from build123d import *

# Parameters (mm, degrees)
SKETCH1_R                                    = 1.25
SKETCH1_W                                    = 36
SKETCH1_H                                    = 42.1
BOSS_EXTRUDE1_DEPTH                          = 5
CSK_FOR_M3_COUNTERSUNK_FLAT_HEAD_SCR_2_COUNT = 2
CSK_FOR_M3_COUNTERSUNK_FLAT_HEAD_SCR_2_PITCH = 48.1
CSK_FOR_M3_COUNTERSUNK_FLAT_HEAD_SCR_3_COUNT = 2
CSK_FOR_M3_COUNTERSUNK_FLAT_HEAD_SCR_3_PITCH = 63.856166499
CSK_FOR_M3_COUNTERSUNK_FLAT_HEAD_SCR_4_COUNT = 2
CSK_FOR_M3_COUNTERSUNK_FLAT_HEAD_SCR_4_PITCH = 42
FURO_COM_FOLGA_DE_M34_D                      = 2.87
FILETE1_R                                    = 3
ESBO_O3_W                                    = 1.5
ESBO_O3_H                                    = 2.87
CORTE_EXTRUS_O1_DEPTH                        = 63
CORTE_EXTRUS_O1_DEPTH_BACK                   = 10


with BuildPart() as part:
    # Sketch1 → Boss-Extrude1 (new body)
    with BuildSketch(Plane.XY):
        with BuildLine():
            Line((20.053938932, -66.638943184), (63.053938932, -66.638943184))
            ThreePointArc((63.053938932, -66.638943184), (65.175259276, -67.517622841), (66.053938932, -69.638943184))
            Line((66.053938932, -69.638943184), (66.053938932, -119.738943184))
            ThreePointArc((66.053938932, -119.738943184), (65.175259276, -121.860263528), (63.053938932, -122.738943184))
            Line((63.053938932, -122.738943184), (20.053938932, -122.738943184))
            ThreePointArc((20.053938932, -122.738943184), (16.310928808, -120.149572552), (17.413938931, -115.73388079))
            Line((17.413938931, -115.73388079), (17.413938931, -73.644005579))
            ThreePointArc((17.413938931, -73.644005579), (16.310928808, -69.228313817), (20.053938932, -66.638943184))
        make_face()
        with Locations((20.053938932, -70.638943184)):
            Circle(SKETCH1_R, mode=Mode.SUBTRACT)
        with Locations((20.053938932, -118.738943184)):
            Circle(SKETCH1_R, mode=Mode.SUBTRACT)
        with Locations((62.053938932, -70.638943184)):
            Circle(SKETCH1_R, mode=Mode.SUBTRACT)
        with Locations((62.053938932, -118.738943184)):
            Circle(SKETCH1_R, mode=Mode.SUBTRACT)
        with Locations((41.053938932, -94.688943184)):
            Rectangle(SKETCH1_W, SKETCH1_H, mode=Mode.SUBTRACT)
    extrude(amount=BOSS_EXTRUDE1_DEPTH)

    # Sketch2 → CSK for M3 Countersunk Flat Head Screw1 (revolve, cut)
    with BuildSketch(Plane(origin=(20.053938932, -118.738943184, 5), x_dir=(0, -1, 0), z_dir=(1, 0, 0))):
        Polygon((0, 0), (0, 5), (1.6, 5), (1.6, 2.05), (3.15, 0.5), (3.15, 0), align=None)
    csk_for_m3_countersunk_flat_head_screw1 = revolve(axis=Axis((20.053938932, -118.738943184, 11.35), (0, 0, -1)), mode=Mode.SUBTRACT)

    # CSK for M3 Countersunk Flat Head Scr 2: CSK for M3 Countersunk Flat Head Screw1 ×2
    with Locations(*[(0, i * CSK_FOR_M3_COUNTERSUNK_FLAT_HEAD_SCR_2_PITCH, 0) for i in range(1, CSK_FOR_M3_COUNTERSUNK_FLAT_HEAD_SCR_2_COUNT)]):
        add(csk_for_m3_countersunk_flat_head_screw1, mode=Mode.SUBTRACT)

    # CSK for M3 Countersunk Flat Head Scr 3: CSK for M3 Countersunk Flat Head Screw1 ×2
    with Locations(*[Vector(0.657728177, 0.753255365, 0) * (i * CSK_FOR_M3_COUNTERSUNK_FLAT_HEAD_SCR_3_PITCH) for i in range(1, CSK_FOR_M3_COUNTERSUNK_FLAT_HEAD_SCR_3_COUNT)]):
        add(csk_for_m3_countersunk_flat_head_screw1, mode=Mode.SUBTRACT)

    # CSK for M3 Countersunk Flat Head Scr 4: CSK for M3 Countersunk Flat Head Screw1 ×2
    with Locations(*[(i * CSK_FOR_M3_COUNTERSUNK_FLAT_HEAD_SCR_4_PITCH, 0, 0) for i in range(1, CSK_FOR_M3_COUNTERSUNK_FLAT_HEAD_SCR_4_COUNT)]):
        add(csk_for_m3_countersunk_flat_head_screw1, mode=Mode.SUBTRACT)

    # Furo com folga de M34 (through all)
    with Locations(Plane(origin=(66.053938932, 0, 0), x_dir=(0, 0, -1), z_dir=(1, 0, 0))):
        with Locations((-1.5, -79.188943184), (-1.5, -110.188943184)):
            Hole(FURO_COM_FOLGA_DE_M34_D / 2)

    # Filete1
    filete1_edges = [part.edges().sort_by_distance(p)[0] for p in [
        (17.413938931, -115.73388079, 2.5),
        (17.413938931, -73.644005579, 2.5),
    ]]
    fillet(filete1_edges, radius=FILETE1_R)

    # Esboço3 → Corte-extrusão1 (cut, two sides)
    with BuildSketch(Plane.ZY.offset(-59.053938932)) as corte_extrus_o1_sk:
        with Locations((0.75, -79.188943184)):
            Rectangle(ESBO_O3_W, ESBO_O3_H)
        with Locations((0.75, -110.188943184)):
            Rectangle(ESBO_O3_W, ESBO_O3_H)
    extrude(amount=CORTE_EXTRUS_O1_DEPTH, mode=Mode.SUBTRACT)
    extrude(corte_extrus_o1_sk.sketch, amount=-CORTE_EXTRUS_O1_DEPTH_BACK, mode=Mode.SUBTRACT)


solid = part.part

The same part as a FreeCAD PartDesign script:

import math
import FreeCAD as App
import Part
import Sketcher
Q = App.Units.Quantity


def edges_at(feature, points):
    """Names of the edges that pass closest to the given points."""
    edges = feature.Shape.Edges
    near = lambda p: min(range(len(edges)), key=lambda i: edges[i].distToShape(Part.Vertex(*p))[0])
    return sorted({f"Edge{near(p) + 1}" for p in points})


def add_polygon(sketch, points):
    """Adds a closed chain of lines whose ends are joined by coincident constraints."""
    first, n = sketch.GeometryCount, len(points)
    for a, b in zip(points, points[1:] + points[:1]):
        sketch.addGeometry(Part.LineSegment(App.Vector(*a, 0), App.Vector(*b, 0)), False)
    for i in range(n):
        sketch.addConstraint(Sketcher.Constraint("Coincident", first + i, 2, first + (i + 1) % n, 1))

doc = App.newDocument("Part")
body = doc.addObject("PartDesign::Body", "Body")

# Sketch on XY plane
sketch1 = body.newObject("Sketcher::SketchObject", "Sketch")
sketch1.AttachmentSupport = (doc.getObject("XY_Plane"), [""])
sketch1.MapMode = "FlatFace"
sketch1.addGeometry(Part.LineSegment(App.Vector(63.1, -66.6, 0), App.Vector(20.1, -66.6, 0)), False)  # 0
sketch1.addGeometry(Part.ArcOfCircle(Part.Circle(App.Vector(20.1, -70.6, 0), App.Vector(0, 0, 1), 4), math.radians(90), math.radians(229)), False)  # 1
sketch1.addGeometry(Part.LineSegment(App.Vector(17.4, -73.6, 0), App.Vector(17.4, -115.7, 0)), False)  # 2
sketch1.addGeometry(Part.ArcOfCircle(Part.Circle(App.Vector(20.1, -118.7, 0), App.Vector(0, 0, 1), 4), math.radians(131), math.radians(270)), False)  # 3
sketch1.addGeometry(Part.LineSegment(App.Vector(20.1, -122.7, 0), App.Vector(63.1, -122.7, 0)), False)  # 4
sketch1.addGeometry(Part.ArcOfCircle(Part.Circle(App.Vector(63.1, -119.7, 0), App.Vector(0, 0, 1), 3), math.radians(-90), math.radians(0)), False)  # 5
sketch1.addGeometry(Part.LineSegment(App.Vector(66.1, -119.7, 0), App.Vector(66.1, -69.6, 0)), False)  # 6
sketch1.addGeometry(Part.ArcOfCircle(Part.Circle(App.Vector(63.1, -69.6, 0), App.Vector(0, 0, 1), 3), math.radians(0), math.radians(90)), False)  # 7
sketch1.addGeometry(Part.Circle(App.Vector(62.1, -118.7, 0), App.Vector(0, 0, 1), 1.2), False)  # 8
sketch1.addGeometry(Part.Circle(App.Vector(20.1, -118.7, 0), App.Vector(0, 0, 1), 1.2), False)  # 9
sketch1.addGeometry(Part.Circle(App.Vector(62.1, -70.6, 0), App.Vector(0, 0, 1), 1.2), False)  # 10
add_polygon(sketch1, [(23.1, -115.7), (23.1, -73.6), (59.1, -73.6), (59.1, -115.7)])  # lines 11-14
sketch1.addGeometry(Part.Circle(App.Vector(20.1, -70.6, 0), App.Vector(0, 0, 1), 1.2), False)  # 15
sketch1.addConstraint([
    Sketcher.Constraint("Tangent", 0, 2, 1, 1),
    Sketcher.Constraint("Coincident", 1, 2, 2, 1),
    Sketcher.Constraint("Coincident", 2, 2, 3, 1),
    Sketcher.Constraint("Tangent", 3, 2, 4, 1),
    Sketcher.Constraint("Tangent", 4, 2, 5, 1),
    Sketcher.Constraint("Tangent", 5, 2, 6, 1),
    Sketcher.Constraint("Tangent", 6, 2, 7, 1),
    Sketcher.Constraint("Tangent", 7, 2, 0, 1),
    Sketcher.Constraint("Horizontal", 0),
    Sketcher.Constraint("Vertical", 2),
    Sketcher.Constraint("Horizontal", 4),
    Sketcher.Constraint("Vertical", 6),
    Sketcher.Constraint("Vertical", 11),
    Sketcher.Constraint("Horizontal", 12),
    Sketcher.Constraint("Vertical", 13),
    Sketcher.Constraint("Horizontal", 14),
    Sketcher.Constraint("Coincident", 9, 3, 3, 3),
    Sketcher.Constraint("Coincident", 15, 3, 1, 3),
    Sketcher.Constraint("Equal", 1, 3),
    Sketcher.Constraint("Equal", 5, 7),
    Sketcher.Constraint("Equal", 8, 9),
    Sketcher.Constraint("Equal", 9, 10),
    Sketcher.Constraint("Equal", 10, 15),
    Sketcher.Constraint("Horizontal", 3, 3, 8, 3),
    Sketcher.Constraint("Horizontal", 1, 3, 10, 3),
    Sketcher.Constraint("Vertical", 1, 3, 3, 3),
    Sketcher.Constraint("Vertical", 8, 3, 10, 3),
    Sketcher.Constraint("Radius", 1, 4.0),
    Sketcher.Constraint("Radius", 5, 3.0),
    Sketcher.Constraint("Diameter", 8, 2.5),
    Sketcher.Constraint("DistanceX", 0, 2, 0, 1, 43.0),
    Sketcher.Constraint("DistanceX", 12, 1, 12, 2, 36.0),
    Sketcher.Constraint("DistanceY", 6, 1, 6, 2, 50.1),
    Sketcher.Constraint("DistanceY", 11, 1, 11, 2, 42.1),
    Sketcher.Constraint("DistanceX", 8, 3, 5, 3, 1.0),
    Sketcher.Constraint("DistanceX", 1, 3, 11, 2, 3.0),
    Sketcher.Constraint("DistanceY", 11, 2, 1, 3, 3.0),
    Sketcher.Constraint("DistanceX", 1, 2, 1, 3, 2.64),
    Sketcher.Constraint("DistanceX", -1, 1, 1, 3, 20.053939),
    Sketcher.Constraint("DistanceY", 2, 2, -1, 1, 115.733881),
])
pad1 = body.newObject("PartDesign::Pad", "Pad")
pad1.Profile = sketch1
pad1.Length = 5

# Sketch on YZ plane
sketch2 = body.newObject("Sketcher::SketchObject", "Sketch001")
sketch2.AttachmentSupport = (doc.getObject("YZ_Plane"), [""])
sketch2.MapMode = "FlatFace"
sketch2.AttachmentOffset = App.Placement(App.Vector(0, 0, 20.053939), App.Rotation())
add_polygon(sketch2, [(-118.7, 0), (-118.7, 5), (-121.9, 5), (-121.9, 4.5), (-120.3, 3), (-120.3, 0)])  # lines 0-5
sketch2.addGeometry(Part.LineSegment(App.Vector(-118.7, 5, 0), App.Vector(-118.7, 0, 0)), True)  # axis
sketch2.addConstraint([
    Sketcher.Constraint("Vertical", 0),
    Sketcher.Constraint("Horizontal", 1),
    Sketcher.Constraint("Vertical", 2),
    Sketcher.Constraint("Vertical", 4),
    Sketcher.Constraint("Horizontal", 5),
    Sketcher.Constraint("Vertical", 6),
    Sketcher.Constraint("Coincident", 6, 1, 0, 2),
    Sketcher.Constraint("PointOnObject", 4, 2, -1),
    Sketcher.Constraint("PointOnObject", 6, 2, -1),
    Sketcher.Constraint("DistanceY", 0, 1, 0, 2, 5.0),
    Sketcher.Constraint("Angle", 3, Q("-45 deg")),
    Sketcher.Constraint("DistanceX", 5, 1, 5, 2, 1.6),
    Sketcher.Constraint("DistanceY", 2, 2, 2, 1, 0.5),
    Sketcher.Constraint("DistanceX", 1, 2, 1, 1, 3.15),
    Sketcher.Constraint("DistanceX", 0, 2, -1, 1, 118.738943),
])
groove = body.newObject("PartDesign::Groove", "Groove")
groove.Profile = sketch2
groove.ReferenceAxis = (sketch2, ["Axis0"])
groove.Angle = 360
doc.recompute()

linearpattern = body.newObject("PartDesign::LinearPattern", "LinearPattern")
linearpattern.Originals = [groove]
linearpattern.Direction = (doc.getObject("Y_Axis"), [""])
linearpattern.Mode = "offset"
linearpattern.Offset = 48.1
linearpattern.Occurrences = 2
body.Tip = linearpattern
doc.recompute()

datumline = body.newObject("PartDesign::Line", "DatumLine")
datumline.Placement = App.Placement(App.Vector(0, 0, 0), App.Rotation(App.Vector(0, 0, 1), App.Vector(0.657728177, 0.753255365, 0)))
linearpattern2 = body.newObject("PartDesign::LinearPattern", "LinearPattern001")
linearpattern2.Originals = [groove]
linearpattern2.Direction = (datumline, [""])
linearpattern2.Mode = "offset"
linearpattern2.Offset = 63.856166
linearpattern2.Occurrences = 2
body.Tip = linearpattern2
doc.recompute()

linearpattern3 = body.newObject("PartDesign::LinearPattern", "LinearPattern002")
linearpattern3.Originals = [groove]
linearpattern3.Direction = (doc.getObject("X_Axis"), [""])
linearpattern3.Mode = "offset"
linearpattern3.Offset = 42
linearpattern3.Occurrences = 2
body.Tip = linearpattern3

# Sketch on YZ plane
sketch3 = body.newObject("Sketcher::SketchObject", "Sketch002")
sketch3.AttachmentSupport = (doc.getObject("YZ_Plane"), [""])
sketch3.MapMode = "FlatFace"
sketch3.AttachmentOffset = App.Placement(App.Vector(0, 0, 66.053939), App.Rotation())
sketch3.addGeometry([
    Part.Circle(App.Vector(-79.2, 1.5, 0), App.Vector(0, 0, 1), 1.4),
    Part.Circle(App.Vector(-110.2, 1.5, 0), App.Vector(0, 0, 1), 1.4),
], False)
sketch3.addConstraint([
    Sketcher.Constraint("Equal", 0, 1),
    Sketcher.Constraint("Horizontal", 0, 3, 1, 3),
    Sketcher.Constraint("Diameter", 0, 2.87),
    Sketcher.Constraint("DistanceX", 1, 3, 0, 3, 31.0),
    Sketcher.Constraint("DistanceY", -1, 1, 0, 3, 1.5),
    Sketcher.Constraint("DistanceX", 0, 3, -1, 1, 79.188943),
])
doc.recompute()
hole = body.newObject("PartDesign::Hole", "Hole")
hole.Profile = sketch3
hole.ThreadType = "None"
hole.Diameter = 2.87
hole.DepthType = "ThroughAll"
doc.recompute()

fillet = body.newObject("PartDesign::Fillet", "Fillet")
fillet.Base = (hole, edges_at(hole, [(17.414, -115.734, 2.5), (17.414, -73.644, 2.5)]))
fillet.Radius = 3

# Sketch on YZ plane
sketch4 = body.newObject("Sketcher::SketchObject", "Sketch003")
sketch4.AttachmentSupport = (doc.getObject("YZ_Plane"), [""])
sketch4.MapMode = "FlatFace"
sketch4.AttachmentOffset = App.Placement(App.Vector(0, 0, 59.053939), App.Rotation())
add_polygon(sketch4, [(-77.8, 0), (-80.6, 0), (-80.6, 1.5), (-77.8, 1.5)])  # lines 0-3
add_polygon(sketch4, [(-108.8, 0), (-111.6, 0), (-111.6, 1.5), (-108.8, 1.5)])  # lines 4-7
sketch4.addConstraint([
    Sketcher.Constraint("Horizontal", 0),
    Sketcher.Constraint("Vertical", 1),
    Sketcher.Constraint("Horizontal", 2),
    Sketcher.Constraint("Vertical", 3),
    Sketcher.Constraint("Horizontal", 4),
    Sketcher.Constraint("Vertical", 5),
    Sketcher.Constraint("Horizontal", 6),
    Sketcher.Constraint("Vertical", 7),
    Sketcher.Constraint("PointOnObject", 0, 2, -1),
    Sketcher.Constraint("PointOnObject", 4, 2, -1),
    Sketcher.Constraint("Horizontal", 2, 2, 5, 2),
    Sketcher.Constraint("Equal", 2, 4),
    Sketcher.Constraint("DistanceY", 1, 1, 1, 2, 1.5),
    Sketcher.Constraint("DistanceX", 4, 2, 0, 2, 31.0),
    Sketcher.Constraint("DistanceX", 0, 2, 0, 1, 2.87),
    Sketcher.Constraint("DistanceX", 0, 2, -1, 1, 80.623943),
])
pocket1 = body.newObject("PartDesign::Pocket", "Pocket")
pocket1.Profile = sketch4
pocket1.Type = "ThroughAll"
pocket1.Midplane = True

doc.recompute()
